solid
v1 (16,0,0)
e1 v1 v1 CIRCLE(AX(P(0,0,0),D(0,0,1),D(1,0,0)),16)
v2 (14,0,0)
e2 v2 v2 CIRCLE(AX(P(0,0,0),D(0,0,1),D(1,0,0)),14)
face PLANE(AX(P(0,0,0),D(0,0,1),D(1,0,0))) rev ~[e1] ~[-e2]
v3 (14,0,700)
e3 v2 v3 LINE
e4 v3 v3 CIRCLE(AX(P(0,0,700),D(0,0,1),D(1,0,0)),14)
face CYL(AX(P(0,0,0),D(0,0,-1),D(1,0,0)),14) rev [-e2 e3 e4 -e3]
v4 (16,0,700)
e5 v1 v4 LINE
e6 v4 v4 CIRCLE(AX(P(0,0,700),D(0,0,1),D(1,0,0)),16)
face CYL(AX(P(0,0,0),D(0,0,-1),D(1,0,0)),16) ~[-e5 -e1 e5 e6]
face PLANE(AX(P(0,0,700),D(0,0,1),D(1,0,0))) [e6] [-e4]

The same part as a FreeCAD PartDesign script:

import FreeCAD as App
import Part
import Sketcher

V = App.Vector
Q = App.Units.Quantity

doc = App.newDocument("Part")
params = doc.addObject("Spreadsheet::Sheet", "Params")
for row, (alias, value) in enumerate([
    ("sketch1_diameter", "32 mm"),
    ("sketch1_diameter2", "28 mm"),
    ("pad1_length", "700 mm"),
], start=1):
    params.set(f"A{row}", alias)
    params.set(f"B{row}", "=" + value)
    params.setAlias(f"B{row}", alias)

body = doc.addObject("PartDesign::Body", "Body")

sketch1 = body.newObject("Sketcher::SketchObject", "Sketch")
sketch1.AttachmentSupport = (doc.getObject("XY_Plane"), [""])
sketch1.MapMode = "FlatFace"
sketch1.addGeometry([
    Part.Circle(V(0, 0, 0), V(0, 0, 1), 16),
    Part.Circle(V(0, 0, 0), V(0, 0, 1), 14),
], False)
sketch1.addConstraint([
    Sketcher.Constraint("Coincident", 0, 3, -1, 1),
    Sketcher.Constraint("Coincident", 1, 3, -1, 1),
    Sketcher.Constraint("Diameter", 0, Q("32 mm")),
    Sketcher.Constraint("Diameter", 1, Q("28 mm")),
])
sketch1.setExpression("Constraints[2]", "Params.sketch1_diameter")
sketch1.setExpression("Constraints[3]", "Params.sketch1_diameter2")
pad1 = body.newObject("PartDesign::Pad", "Pad")
pad1.Profile = sketch1
pad1.setExpression("Length", "Params.pad1_length")

doc.recompute()
